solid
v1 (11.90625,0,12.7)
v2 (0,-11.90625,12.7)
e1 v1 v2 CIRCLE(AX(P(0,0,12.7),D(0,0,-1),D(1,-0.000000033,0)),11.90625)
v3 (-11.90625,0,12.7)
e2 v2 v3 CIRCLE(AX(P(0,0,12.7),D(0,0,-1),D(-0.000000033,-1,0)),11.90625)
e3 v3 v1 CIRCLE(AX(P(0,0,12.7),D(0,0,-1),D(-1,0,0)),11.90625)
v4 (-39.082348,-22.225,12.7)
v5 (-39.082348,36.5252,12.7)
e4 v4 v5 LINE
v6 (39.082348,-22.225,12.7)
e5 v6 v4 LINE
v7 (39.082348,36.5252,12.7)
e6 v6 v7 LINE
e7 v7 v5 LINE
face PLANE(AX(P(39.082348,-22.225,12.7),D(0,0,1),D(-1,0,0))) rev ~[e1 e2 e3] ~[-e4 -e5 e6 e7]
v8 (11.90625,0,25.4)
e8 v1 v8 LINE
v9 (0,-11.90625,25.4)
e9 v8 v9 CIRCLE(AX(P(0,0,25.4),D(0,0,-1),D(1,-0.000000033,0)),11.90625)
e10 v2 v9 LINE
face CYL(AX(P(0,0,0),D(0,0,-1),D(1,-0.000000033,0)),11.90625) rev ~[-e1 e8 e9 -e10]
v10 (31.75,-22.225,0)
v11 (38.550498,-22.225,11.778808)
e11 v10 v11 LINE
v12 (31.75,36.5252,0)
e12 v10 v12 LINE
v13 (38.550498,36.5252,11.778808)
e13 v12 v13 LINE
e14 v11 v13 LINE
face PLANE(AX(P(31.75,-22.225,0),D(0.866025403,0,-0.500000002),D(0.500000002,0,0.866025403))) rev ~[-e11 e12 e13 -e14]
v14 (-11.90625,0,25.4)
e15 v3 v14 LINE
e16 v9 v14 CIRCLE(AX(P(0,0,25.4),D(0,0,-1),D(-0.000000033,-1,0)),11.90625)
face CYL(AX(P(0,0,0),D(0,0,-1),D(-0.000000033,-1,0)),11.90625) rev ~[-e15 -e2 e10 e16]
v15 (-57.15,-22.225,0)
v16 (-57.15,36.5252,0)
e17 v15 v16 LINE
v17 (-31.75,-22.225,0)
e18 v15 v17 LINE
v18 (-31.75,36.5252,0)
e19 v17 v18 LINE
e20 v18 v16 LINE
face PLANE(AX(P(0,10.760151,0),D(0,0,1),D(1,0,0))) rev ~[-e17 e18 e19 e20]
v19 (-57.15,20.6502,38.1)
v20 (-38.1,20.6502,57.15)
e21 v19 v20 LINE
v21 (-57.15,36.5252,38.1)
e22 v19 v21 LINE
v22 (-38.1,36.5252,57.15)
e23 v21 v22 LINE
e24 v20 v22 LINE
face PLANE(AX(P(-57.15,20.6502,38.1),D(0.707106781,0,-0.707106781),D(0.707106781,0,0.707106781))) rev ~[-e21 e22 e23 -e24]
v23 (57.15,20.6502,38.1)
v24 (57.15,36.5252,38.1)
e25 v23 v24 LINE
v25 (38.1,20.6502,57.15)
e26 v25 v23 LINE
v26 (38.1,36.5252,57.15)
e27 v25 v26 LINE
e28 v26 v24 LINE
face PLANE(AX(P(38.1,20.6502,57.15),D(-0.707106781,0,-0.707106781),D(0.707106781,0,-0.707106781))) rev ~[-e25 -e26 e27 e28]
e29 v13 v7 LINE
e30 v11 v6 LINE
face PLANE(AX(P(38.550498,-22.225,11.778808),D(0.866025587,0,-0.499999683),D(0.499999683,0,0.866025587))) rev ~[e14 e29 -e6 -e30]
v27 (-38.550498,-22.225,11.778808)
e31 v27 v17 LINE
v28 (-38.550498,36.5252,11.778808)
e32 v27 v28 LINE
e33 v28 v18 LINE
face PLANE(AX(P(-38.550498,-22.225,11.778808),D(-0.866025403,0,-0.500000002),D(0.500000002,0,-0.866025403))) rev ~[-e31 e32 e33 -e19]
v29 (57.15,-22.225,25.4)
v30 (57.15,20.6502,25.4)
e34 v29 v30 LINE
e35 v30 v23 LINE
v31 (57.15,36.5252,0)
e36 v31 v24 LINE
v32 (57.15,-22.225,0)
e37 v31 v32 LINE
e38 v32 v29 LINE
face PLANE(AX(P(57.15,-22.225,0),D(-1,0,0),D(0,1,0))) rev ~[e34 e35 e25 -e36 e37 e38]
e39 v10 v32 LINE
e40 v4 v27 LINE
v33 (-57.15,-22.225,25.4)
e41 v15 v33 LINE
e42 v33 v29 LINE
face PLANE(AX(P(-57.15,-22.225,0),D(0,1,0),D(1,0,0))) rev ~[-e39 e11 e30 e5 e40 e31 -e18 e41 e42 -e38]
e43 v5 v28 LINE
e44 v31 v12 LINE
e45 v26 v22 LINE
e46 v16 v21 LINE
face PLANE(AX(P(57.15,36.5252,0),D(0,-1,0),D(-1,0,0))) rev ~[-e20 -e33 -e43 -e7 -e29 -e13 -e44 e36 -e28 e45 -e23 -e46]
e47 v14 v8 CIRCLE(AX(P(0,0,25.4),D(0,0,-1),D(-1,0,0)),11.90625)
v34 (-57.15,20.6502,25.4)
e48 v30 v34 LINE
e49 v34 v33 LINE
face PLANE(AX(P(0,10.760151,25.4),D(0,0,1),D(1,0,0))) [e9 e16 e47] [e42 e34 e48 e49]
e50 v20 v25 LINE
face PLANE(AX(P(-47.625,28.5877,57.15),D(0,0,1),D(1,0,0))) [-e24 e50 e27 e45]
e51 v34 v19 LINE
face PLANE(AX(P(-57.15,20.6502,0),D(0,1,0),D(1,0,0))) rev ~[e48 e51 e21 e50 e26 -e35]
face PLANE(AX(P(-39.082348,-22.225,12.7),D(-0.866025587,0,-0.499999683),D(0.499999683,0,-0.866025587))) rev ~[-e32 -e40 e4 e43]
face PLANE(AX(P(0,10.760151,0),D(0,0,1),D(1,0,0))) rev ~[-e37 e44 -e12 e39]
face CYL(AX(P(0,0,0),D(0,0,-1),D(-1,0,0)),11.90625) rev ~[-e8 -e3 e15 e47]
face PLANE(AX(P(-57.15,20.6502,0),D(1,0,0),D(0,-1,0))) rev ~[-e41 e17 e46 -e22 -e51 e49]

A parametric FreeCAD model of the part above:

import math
import FreeCAD as App
import Part
import Sketcher
Q = App.Units.Quantity

doc = App.newDocument("Part")
params = doc.addObject("Spreadsheet::Sheet", "Params")
for row, (alias, value) in enumerate([
    ("sketch1_width", "4.5 in"),
    ("sketch1_height", "0.625 in"),
    ("pad1_length", "2.25 in"),
    ("sketch2_width", "4.5 in"),
    ("sketch2_radius", "0.46875 in"),
    ("sketch2_height", "1.688 in"),
    ("pad2_length", "1 in"),
    ("sketch3_width", "0.75 in"),
    ("pocket1_length", "0.625 in"),
    ("sketch4_width", "2.5 in"),
    ("pocket2_length", "2.313 in"),
], start=1):
    params.set(f"A{row}", alias)
    params.set(f"B{row}", "=" + value)
    params.setAlias(f"B{row}", alias)

body = doc.addObject("PartDesign::Body", "Body")

# Sketch on XY plane
sketch1 = body.newObject("Sketcher::SketchObject", "Sketch")
sketch1.AttachmentSupport = (doc.getObject("XY_Plane"), [""])
sketch1.MapMode = "FlatFace"
sketch1.addGeometry([
    Part.LineSegment(App.Vector(-57.15, 36.5252, 0), App.Vector(-57.15, 20.6502, 0)),
    Part.LineSegment(App.Vector(-57.15, 20.6502, 0), App.Vector(57.15, 20.6502, 0)),
    Part.LineSegment(App.Vector(57.15, 20.6502, 0), App.Vector(57.15, 36.5252, 0)),
    Part.LineSegment(App.Vector(57.15, 36.5252, 0), App.Vector(-57.15, 36.5252, 0)),
], False)
sketch1.addConstraint([
    Sketcher.Constraint("Coincident", 0, 2, 1, 1),
    Sketcher.Constraint("Coincident", 1, 2, 2, 1),
    Sketcher.Constraint("Coincident", 2, 2, 3, 1),
    Sketcher.Constraint("Coincident", 3, 2, 0, 1),
    Sketcher.Constraint("Vertical", 0),
    Sketcher.Constraint("Horizontal", 1),
    Sketcher.Constraint("Vertical", 2),
    Sketcher.Constraint("Horizontal", 3),
    Sketcher.Constraint("DistanceX", 1, 1, 1, 2, Q("4.5 in")),
    Sketcher.Constraint("DistanceY", 0, 2, 0, 1, Q("0.625 in")),
    Sketcher.Constraint("DistanceX", 0, 2, -1, 1, Q("2.25 in")),
    Sketcher.Constraint("DistanceY", -1, 1, 0, 2, Q("0.813 in")),
])
sketch1.setExpression("Constraints[8]", "Params.sketch1_width")
sketch1.setExpression("Constraints[9]", "Params.sketch1_height")
pad1 = body.newObject("PartDesign::Pad", "Pad")
pad1.Profile = sketch1
pad1.setExpression("Length", "Params.pad1_length")

# Sketch on XY plane
sketch2 = body.newObject("Sketcher::SketchObject", "Sketch001")
sketch2.AttachmentSupport = (doc.getObject("XY_Plane"), [""])
sketch2.MapMode = "FlatFace"
sketch2.addGeometry([
    Part.LineSegment(App.Vector(57.15, 20.6502, 0), App.Vector(-57.15, 20.6502, 0)),  # 0
    Part.LineSegment(App.Vector(-57.15, 20.6502, 0), App.Vector(-57.15, -22.225, 0)),  # 1
    Part.LineSegment(App.Vector(-57.15, -22.225, 0), App.Vector(57.15, -22.225, 0)),  # 2
    Part.LineSegment(App.Vector(57.15, -22.225, 0), App.Vector(57.15, 20.6502, 0)),  # 3
    Part.ArcOfCircle(Part.Circle(App.Vector(0, 0, 0), App.Vector(0, 0, 1), 11.90625), math.radians(0), math.radians(180)),  # 4
    Part.ArcOfCircle(Part.Circle(App.Vector(0, 0, 0), App.Vector(0, 0, 1), 11.90625), math.radians(-89.999998), math.radians(-0.000002)),  # 5
    Part.ArcOfCircle(Part.Circle(App.Vector(0, 0, 0), App.Vector(0, 0, 1), 11.90625), math.radians(-179.999998), math.radians(-90.000002)),  # 6
], False)
sketch2.addConstraint([
    Sketcher.Constraint("Coincident", 0, 2, 1, 1),
    Sketcher.Constraint("Coincident", 1, 2, 2, 1),
    Sketcher.Constraint("Coincident", 2, 2, 3, 1),
    Sketcher.Constraint("Coincident", 3, 2, 0, 1),
    Sketcher.Constraint("Tangent", 4, 1, 5, 2),
    Sketcher.Constraint("Tangent", 5, 1, 6, 2),
    Sketcher.Constraint("Tangent", 6, 1, 4, 2),
    Sketcher.Constraint("Horizontal", 0),
    Sketcher.Constraint("Vertical", 1),
    Sketcher.Constraint("Horizontal", 2),
    Sketcher.Constraint("Vertical", 3),
    Sketcher.Constraint("Coincident", 4, 3, -1, 1),
    Sketcher.Constraint("PointOnObject", 4, 1, -1),
    Sketcher.Constraint("PointOnObject", 5, 1, -2),
    Sketcher.Constraint("PointOnObject", 6, 1, -1),
    Sketcher.Constraint("DistanceX", 0, 2, 0, 1, Q("4.5 in")),
    Sketcher.Constraint("Radius", 4, Q("0.46875 in")),
    Sketcher.Constraint("DistanceY", 1, 2, 1, 1, Q("1.688 in")),
    Sketcher.Constraint("DistanceX", 0, 2, -1, 1, Q("2.25 in")),
    Sketcher.Constraint("DistanceY", -1, 1, 0, 2, Q("0.813 in")),
])
sketch2.setExpression("Constraints[15]", "Params.sketch2_width")
sketch2.setExpression("Constraints[16]", "Params.sketch2_radius")
sketch2.setExpression("Constraints[17]", "Params.sketch2_height")
pad2 = body.newObject("PartDesign::Pad", "Pad001")
pad2.Profile = sketch2
pad2.setExpression("Length", "Params.pad2_length")

# Sketch on XZ plane
sketch3 = body.newObject("Sketcher::SketchObject", "Sketch002")
sketch3.AttachmentSupport = (doc.getObject("XZ_Plane"), [""])
sketch3.MapMode = "FlatFace"
sketch3.AttachmentOffset = App.Placement(App.Vector(0, 0, -0.813 * 25.4), App.Rotation())
sketch3.addGeometry([
    Part.LineSegment(App.Vector(-38.1, 57.15, 0), App.Vector(-57.15, 57.15, 0)),  # 0
    Part.LineSegment(App.Vector(-57.15, 57.15, 0), App.Vector(-57.15, 38.1, 0)),  # 1
    Part.LineSegment(App.Vector(-57.15, 38.1, 0), App.Vector(-38.1, 57.15, 0)),  # 2
    Part.LineSegment(App.Vector(57.15, 57.15, 0), App.Vector(38.1, 57.15, 0)),  # 3
    Part.LineSegment(App.Vector(38.1, 57.15, 0), App.Vector(57.15, 38.1, 0)),  # 4
    Part.LineSegment(App.Vector(57.15, 38.1, 0), App.Vector(57.15, 57.15, 0)),  # 5
], False)
sketch3.addConstraint([
    Sketcher.Constraint("Coincident", 0, 2, 1, 1),
    Sketcher.Constraint("Coincident", 1, 2, 2, 1),
    Sketcher.Constraint("Coincident", 2, 2, 0, 1),
    Sketcher.Constraint("Coincident", 3, 2, 4, 1),
    Sketcher.Constraint("Coincident", 4, 2, 5, 1),
    Sketcher.Constraint("Coincident", 5, 2, 3, 1),
    Sketcher.Constraint("Horizontal", 0),
    Sketcher.Constraint("Vertical", 1),
    Sketcher.Constraint("Horizontal", 3),
    Sketcher.Constraint("Vertical", 5),
    Sketcher.Constraint("Symmetric", 2, 2, 3, 2, -2),
    Sketcher.Constraint("Symmetric", 1, 2, 4, 2, -2),
    Sketcher.Constraint("Perpendicular", 2, 4),
    Sketcher.Constraint("DistanceX", 2, 2, 3, 2, Q("3 in")),
    Sketcher.Constraint("DistanceX", 0, 2, 0, 1, Q("0.75 in")),
    Sketcher.Constraint("DistanceY", -1, 1, 1, 2, Q("1.5 in")),
])
sketch3.setExpression("Constraints[14]", "Params.sketch3_width")
pocket1 = body.newObject("PartDesign::Pocket", "Pocket")
pocket1.Profile = sketch3
pocket1.setExpression("Length", "Params.pocket1_length")

# Sketch on XZ plane
sketch4 = body.newObject("Sketcher::SketchObject", "Sketch003")
sketch4.AttachmentSupport = (doc.getObject("XZ_Plane"), [""])
sketch4.MapMode = "FlatFace"
sketch4.AttachmentOffset = App.Placement(App.Vector(0, 0, 0.875 * 25.4), App.Rotation())
sketch4.addGeometry([
    Part.LineSegment(App.Vector(-38.550498, 11.778808, 0), App.Vector(-31.75, 0, 0)),  # 0
    Part.LineSegment(App.Vector(-31.75, 0, 0), App.Vector(31.75, 0, 0)),  # 1
    Part.LineSegment(App.Vector(31.75, 0, 0), App.Vector(38.550498, 11.778808, 0)),  # 2
    Part.LineSegment(App.Vector(38.550498, 11.778808, 0), App.Vector(39.082348, 12.7, 0)),  # 3
    Part.LineSegment(App.Vector(39.082348, 12.7, 0), App.Vector(-39.082348, 12.7, 0)),  # 4
    Part.LineSegment(App.Vector(-39.082348, 12.7, 0), App.Vector(-38.550498, 11.778808, 0)),  # 5
], False)
sketch4.addConstraint([
    Sketcher.Constraint("Coincident", 0, 2, 1, 1),
    Sketcher.Constraint("Coincident", 1, 2, 2, 1),
    Sketcher.Constraint("Coincident", 2, 2, 3, 1),
    Sketcher.Constraint("Coincident", 3, 2, 4, 1),
    Sketcher.Constraint("Coincident", 4, 2, 5, 1),
    Sketcher.Constraint("Coincident", 5, 2, 0, 1),
    Sketcher.Constraint("Horizontal", 1),
    Sketcher.Constraint("Horizontal", 4),
    Sketcher.Constraint("Symmetric", 0, 2, 1, 2, -1, 1),
    Sketcher.Constraint("Symmetric", 2, 2, 5, 2, -2),
    Sketcher.Constraint("Parallel", 2, 3),
    Sketcher.Constraint("Parallel", 0, 5),
    Sketcher.Constraint("DistanceX", 1, 1, 1, 2, Q("2.5 in")),
    Sketcher.Constraint("Angle", 0, Q("-60 deg")),
    Sketcher.Constraint("DistanceY", -1, 1, 3, 2, Q("0.5 in")),
    Sketcher.Constraint("Distance", 3, 1.063701),
])
sketch4.setExpression("Constraints[12]", "Params.sketch4_width")
pocket2 = body.newObject("PartDesign::Pocket", "Pocket001")
pocket2.Profile = sketch4
pocket2.setExpression("Length", "Params.pocket2_length")

doc.recompute()
